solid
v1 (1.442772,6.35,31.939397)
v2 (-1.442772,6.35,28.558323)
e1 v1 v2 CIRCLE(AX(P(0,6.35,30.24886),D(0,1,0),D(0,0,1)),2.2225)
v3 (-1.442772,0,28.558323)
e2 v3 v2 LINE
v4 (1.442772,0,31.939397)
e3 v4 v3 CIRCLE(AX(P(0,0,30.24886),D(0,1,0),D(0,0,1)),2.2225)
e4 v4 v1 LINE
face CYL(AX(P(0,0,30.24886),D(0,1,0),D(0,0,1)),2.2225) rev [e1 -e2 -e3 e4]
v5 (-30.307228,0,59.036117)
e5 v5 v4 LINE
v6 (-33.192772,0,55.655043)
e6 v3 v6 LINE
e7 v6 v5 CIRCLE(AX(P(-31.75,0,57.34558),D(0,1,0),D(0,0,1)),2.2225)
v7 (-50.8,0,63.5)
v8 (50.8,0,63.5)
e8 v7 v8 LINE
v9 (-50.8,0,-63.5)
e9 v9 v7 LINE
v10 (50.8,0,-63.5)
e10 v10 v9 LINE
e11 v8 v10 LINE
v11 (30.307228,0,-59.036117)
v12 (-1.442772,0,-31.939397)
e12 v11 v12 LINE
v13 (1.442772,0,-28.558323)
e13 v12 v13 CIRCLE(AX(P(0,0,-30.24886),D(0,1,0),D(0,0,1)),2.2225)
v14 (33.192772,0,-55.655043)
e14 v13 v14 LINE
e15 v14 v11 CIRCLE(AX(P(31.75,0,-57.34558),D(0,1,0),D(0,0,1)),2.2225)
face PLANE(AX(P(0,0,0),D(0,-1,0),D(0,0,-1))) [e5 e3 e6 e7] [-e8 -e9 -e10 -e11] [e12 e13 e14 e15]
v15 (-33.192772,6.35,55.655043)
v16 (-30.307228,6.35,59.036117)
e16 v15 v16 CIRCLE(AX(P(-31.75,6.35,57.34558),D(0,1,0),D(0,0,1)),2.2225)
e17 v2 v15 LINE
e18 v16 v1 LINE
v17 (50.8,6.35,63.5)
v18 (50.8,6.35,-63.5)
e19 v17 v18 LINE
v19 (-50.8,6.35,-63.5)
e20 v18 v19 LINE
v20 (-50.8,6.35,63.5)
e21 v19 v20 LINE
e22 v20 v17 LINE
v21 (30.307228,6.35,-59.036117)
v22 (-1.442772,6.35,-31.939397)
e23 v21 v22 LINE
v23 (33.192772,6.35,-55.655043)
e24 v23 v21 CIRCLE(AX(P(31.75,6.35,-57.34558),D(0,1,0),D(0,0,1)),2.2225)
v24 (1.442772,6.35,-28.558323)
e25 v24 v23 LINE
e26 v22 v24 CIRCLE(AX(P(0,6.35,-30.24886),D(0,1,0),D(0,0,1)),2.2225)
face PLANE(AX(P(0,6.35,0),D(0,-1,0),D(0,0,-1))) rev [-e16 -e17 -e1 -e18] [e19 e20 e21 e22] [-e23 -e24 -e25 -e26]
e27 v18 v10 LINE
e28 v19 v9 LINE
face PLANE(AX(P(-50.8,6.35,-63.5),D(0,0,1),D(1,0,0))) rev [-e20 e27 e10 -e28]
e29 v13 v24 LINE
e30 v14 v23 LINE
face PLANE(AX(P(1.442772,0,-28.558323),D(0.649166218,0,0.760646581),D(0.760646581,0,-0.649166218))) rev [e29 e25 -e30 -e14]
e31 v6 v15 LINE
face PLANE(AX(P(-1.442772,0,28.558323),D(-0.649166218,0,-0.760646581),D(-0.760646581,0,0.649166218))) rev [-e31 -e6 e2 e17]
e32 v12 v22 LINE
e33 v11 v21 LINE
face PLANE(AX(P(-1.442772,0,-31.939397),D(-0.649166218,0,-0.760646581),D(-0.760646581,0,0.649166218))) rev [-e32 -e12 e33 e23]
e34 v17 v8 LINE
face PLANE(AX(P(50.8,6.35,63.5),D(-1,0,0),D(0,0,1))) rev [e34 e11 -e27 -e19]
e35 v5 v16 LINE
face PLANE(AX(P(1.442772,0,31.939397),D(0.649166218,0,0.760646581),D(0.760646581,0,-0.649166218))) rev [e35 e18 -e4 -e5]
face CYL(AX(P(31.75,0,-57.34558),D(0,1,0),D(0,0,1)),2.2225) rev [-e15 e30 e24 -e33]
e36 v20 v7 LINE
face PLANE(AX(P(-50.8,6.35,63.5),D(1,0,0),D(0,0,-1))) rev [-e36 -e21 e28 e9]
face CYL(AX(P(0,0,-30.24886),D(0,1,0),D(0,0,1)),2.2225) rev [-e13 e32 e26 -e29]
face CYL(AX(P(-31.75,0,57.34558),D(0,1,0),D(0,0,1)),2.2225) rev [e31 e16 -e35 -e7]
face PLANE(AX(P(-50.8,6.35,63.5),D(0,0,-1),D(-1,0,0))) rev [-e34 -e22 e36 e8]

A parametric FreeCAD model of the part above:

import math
import FreeCAD as App
import Part
import Sketcher
from FreeCAD import Vector
Q = App.Units.Quantity


def add_polygon(sketch, points):
    """Adds a closed chain of lines whose ends are joined by coincident constraints."""
    first, n = sketch.GeometryCount, len(points)
    for a, b in zip(points, points[1:] + points[:1]):
        sketch.addGeometry(Part.LineSegment(App.Vector(*a, 0), App.Vector(*b, 0)), False)
    for i in range(n):
        sketch.addConstraint(Sketcher.Constraint("Coincident", first + i, 2, first + (i + 1) % n, 1))

doc = App.newDocument("Part")
body = doc.addObject("PartDesign::Body", "Body")

# Sketch on XZ plane
sketch1 = doc.addObject("Sketcher::SketchObject", "Sketch")
body.addObject(sketch1)
sketch1.AttachmentSupport = (doc.XZ_Plane, [""])
sketch1.MapMode = "FlatFace"
add_polygon(sketch1, [(-51, -64), (-51, 64), (51, 64), (51, -64)])  # lines 0-3
sketch1.addConstraint(Sketcher.Constraint("Vertical", 0))
sketch1.addConstraint(Sketcher.Constraint("Horizontal", 1))
sketch1.addConstraint(Sketcher.Constraint("Vertical", 2))
sketch1.addConstraint(Sketcher.Constraint("Horizontal", 3))
sketch1.addConstraint(Sketcher.Constraint("Symmetric", 0, 2, 2, 2, -1, 1))
sketch1.addConstraint(Sketcher.Constraint("DistanceX", 1, 1, 1, 2, Q("4 in")))
sketch1.addConstraint(Sketcher.Constraint("DistanceY", 0, 1, 0, 2, Q("5 in")))
pad1 = doc.addObject("PartDesign::Pad", "Pad")
body.addObject(pad1)
pad1.Profile = sketch1
pad1.Length = Q("0.25 in")
pad1.Reversed = True

# Sketch on XZ plane
sketch2 = doc.addObject("Sketcher::SketchObject", "Sketch001")
body.addObject(sketch2)
sketch2.AttachmentSupport = (doc.XZ_Plane, [""])
sketch2.MapMode = "FlatFace"
sketch2.AttachmentOffset = App.Placement(Vector(0, 0, -0.25 * 25.4), App.Rotation())
sketch2.addGeometry(Part.LineSegment(Vector(30.3, -59, 0), Vector(-1.4, -31.9, 0)), False)
sketch2.addGeometry(Part.ArcOfCircle(Part.Circle(Vector(0, -30.2, 0), Vector(0, 0, 1), 2.2), math.radians(50), math.radians(230)), False)
sketch2.addGeometry(Part.LineSegment(Vector(1.4, -28.6, 0), Vector(33.2, -55.7, 0)), False)
sketch2.addGeometry(Part.ArcOfCircle(Part.Circle(Vector(31.8, -57.3, 0), Vector(0, 0, 1), 2.2), math.radians(-130), math.radians(50)), False)
sketch2.addGeometry(Part.LineSegment(Vector(-30.3, 59, 0), Vector(1.4, 31.9, 0)), False)
sketch2.addGeometry(Part.ArcOfCircle(Part.Circle(Vector(0, 30.2, 0), Vector(0, 0, 1), 2.2), math.radians(-130), math.radians(50)), False)
sketch2.addGeometry(Part.LineSegment(Vector(-1.4, 28.6, 0), Vector(-33.2, 55.7, 0)), False)
sketch2.addGeometry(Part.ArcOfCircle(Part.Circle(Vector(-31.8, 57.3, 0), Vector(0, 0, 1), 2.2), math.radians(50), math.radians(230)), False)
sketch2.addConstraint(Sketcher.Constraint("Tangent", 0, 2, 1, 2))
sketch2.addConstraint(Sketcher.Constraint("Tangent", 1, 1, 2, 1))
sketch2.addConstraint(Sketcher.Constraint("Tangent", 2, 2, 3, 2))
sketch2.addConstraint(Sketcher.Constraint("Tangent", 3, 1, 0, 1))
sketch2.addConstraint(Sketcher.Constraint("Tangent", 4, 2, 5, 2))
sketch2.addConstraint(Sketcher.Constraint("Tangent", 5, 1, 6, 1))
sketch2.addConstraint(Sketcher.Constraint("Tangent", 6, 2, 7, 2))
sketch2.addConstraint(Sketcher.Constraint("Tangent", 7, 1, 4, 1))
sketch2.addConstraint(Sketcher.Constraint("Equal", 1, 3))
sketch2.addConstraint(Sketcher.Constraint("Equal", 3, 5))
sketch2.addConstraint(Sketcher.Constraint("Equal", 5, 7))
sketch2.addConstraint(Sketcher.Constraint("Symmetric", 1, 3, 5, 3, -1, 1))
sketch2.addConstraint(Sketcher.Constraint("Symmetric", 3, 3, 7, 3, -1, 1))
sketch2.addConstraint(Sketcher.Constraint("PointOnObject", 1, 3, -2))
sketch2.addConstraint(Sketcher.Constraint("Radius", 1, Q("0.0875 in")))
sketch2.addConstraint(Sketcher.Constraint("DistanceX", 7, 3, 3, 3, Q("2.5 in")))
sketch2.addConstraint(Sketcher.Constraint("DistanceY", 1, 3, -1, 1, Q("1.1909 in")))
sketch2.addConstraint(Sketcher.Constraint("DistanceY", 3, 3, -1, 1, Q("2.2577 in")))
pocket1 = doc.addObject("PartDesign::Pocket", "Pocket")
body.addObject(pocket1)
pocket1.Profile = sketch2
pocket1.Type = "ThroughAll"
pocket1.Reversed = True

doc.recompute()
